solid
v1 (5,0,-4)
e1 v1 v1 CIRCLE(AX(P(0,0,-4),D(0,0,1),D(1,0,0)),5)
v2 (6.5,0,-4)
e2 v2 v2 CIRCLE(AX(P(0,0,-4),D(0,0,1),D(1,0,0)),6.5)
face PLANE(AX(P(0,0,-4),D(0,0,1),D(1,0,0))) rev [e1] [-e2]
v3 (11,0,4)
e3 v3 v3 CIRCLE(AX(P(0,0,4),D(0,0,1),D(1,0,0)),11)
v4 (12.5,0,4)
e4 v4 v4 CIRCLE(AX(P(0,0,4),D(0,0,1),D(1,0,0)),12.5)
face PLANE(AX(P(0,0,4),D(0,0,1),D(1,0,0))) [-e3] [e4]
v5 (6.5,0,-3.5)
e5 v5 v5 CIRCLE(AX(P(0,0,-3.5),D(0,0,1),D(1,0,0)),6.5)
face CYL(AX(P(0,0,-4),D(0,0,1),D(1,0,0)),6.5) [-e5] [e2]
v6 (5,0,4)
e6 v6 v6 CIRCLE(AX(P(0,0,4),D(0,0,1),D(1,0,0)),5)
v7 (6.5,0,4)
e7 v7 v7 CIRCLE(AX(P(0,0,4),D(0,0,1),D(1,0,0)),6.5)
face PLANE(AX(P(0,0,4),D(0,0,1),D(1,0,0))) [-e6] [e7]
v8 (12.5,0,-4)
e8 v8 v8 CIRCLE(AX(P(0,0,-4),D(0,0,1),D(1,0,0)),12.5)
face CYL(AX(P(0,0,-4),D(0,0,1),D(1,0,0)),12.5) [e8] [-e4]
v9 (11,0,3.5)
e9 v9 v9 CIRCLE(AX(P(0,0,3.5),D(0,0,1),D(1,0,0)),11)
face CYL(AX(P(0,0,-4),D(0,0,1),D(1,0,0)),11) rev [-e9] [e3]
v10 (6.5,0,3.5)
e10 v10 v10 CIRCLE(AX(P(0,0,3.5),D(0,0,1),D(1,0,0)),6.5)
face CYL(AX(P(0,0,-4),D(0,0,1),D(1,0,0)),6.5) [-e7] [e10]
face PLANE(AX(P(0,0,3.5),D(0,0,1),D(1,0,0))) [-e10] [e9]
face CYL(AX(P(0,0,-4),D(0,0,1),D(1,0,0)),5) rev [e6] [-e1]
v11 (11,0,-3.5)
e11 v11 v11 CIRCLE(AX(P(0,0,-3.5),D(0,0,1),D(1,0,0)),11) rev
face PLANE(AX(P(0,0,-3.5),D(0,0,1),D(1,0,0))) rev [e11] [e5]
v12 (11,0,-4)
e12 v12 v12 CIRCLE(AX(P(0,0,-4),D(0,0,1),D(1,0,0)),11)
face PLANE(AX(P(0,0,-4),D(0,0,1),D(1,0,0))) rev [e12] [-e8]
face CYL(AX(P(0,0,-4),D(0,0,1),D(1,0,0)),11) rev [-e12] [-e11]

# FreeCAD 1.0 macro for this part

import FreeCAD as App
import Part
import Sketcher
Q = App.Units.Quantity

doc = App.newDocument("Part")
params = doc.addObject("Spreadsheet::Sheet", "Params")
for row, (alias, value) in enumerate([
    ("sketch1_diameter", "25 mm"),
    ("sketch1_diameter2", "22 mm"),
    ("pad1_length", "4 mm"),
    ("pad1_length2", "4 mm"),
    ("sketch2_diameter", "13 mm"),
    ("sketch2_diameter2", "10 mm"),
    ("pad2_length", "4 mm"),
    ("pad2_length2", "4 mm"),
    ("sketch3_diameter", "22 mm"),
    ("sketch3_diameter2", "13 mm"),
    ("pad3_length", "3.5 mm"),
    ("pad3_length2", "3.5 mm"),
], start=1):
    params.set(f"A{row}", alias)
    params.set(f"B{row}", "=" + value)
    params.setAlias(f"B{row}", alias)

body = doc.addObject("PartDesign::Body", "Body")

sketch1 = doc.addObject("Sketcher::SketchObject", "Sketch")
body.addObject(sketch1)
sketch1.AttachmentSupport = (doc.XY_Plane, [""])
sketch1.MapMode = "FlatFace"
sketch1.addGeometry([
    Part.Circle(App.Vector(0, 0, 0), App.Vector(0, 0, 1), 12),
    Part.Circle(App.Vector(0, 0, 0), App.Vector(0, 0, 1), 11),
], False)
sketch1.addConstraint([
    Sketcher.Constraint("Coincident", 0, 3, -1, 1),
    Sketcher.Constraint("Coincident", 1, 3, -1, 1),
    Sketcher.Constraint("Diameter", 0, Q("25 mm")),
    Sketcher.Constraint("Diameter", 1, Q("22 mm")),
])
sketch1.setExpression("Constraints[2]", "Params.sketch1_diameter")
sketch1.setExpression("Constraints[3]", "Params.sketch1_diameter2")
pad1 = doc.addObject("PartDesign::Pad", "Pad")
body.addObject(pad1)
pad1.Profile = sketch1
pad1.Type = "TwoLengths"
pad1.setExpression("Length", "Params.pad1_length")
pad1.setExpression("Length2", "Params.pad1_length2")
body2 = doc.addObject("PartDesign::Body", "Body001")

sketch2 = doc.addObject("Sketcher::SketchObject", "Sketch001")
body2.addObject(sketch2)
sketch2.AttachmentSupport = (doc.getObject("XY_Plane001"), [""])
sketch2.MapMode = "FlatFace"
sketch2.addGeometry([
    Part.Circle(App.Vector(0, 0, 0), App.Vector(0, 0, 1), 6),
    Part.Circle(App.Vector(0, 0, 0), App.Vector(0, 0, 1), 5),
], False)
sketch2.addConstraint([
    Sketcher.Constraint("Coincident", 0, 3, -1, 1),
    Sketcher.Constraint("Coincident", 1, 3, -1, 1),
    Sketcher.Constraint("Diameter", 0, Q("13 mm")),
    Sketcher.Constraint("Diameter", 1, Q("10 mm")),
])
sketch2.setExpression("Constraints[2]", "Params.sketch2_diameter")
sketch2.setExpression("Constraints[3]", "Params.sketch2_diameter2")
pad2 = doc.addObject("PartDesign::Pad", "Pad001")
body2.addObject(pad2)
pad2.Profile = sketch2
pad2.Type = "TwoLengths"
pad2.setExpression("Length", "Params.pad2_length")
pad2.setExpression("Length2", "Params.pad2_length2")
body.AllowCompound = True
doc.recompute()

boolean = doc.addObject("PartDesign::Boolean", "Boolean")
body.addObject(boolean)
boolean.Type = "Fuse"
boolean.addObjects([body2])

sketch3 = doc.addObject("Sketcher::SketchObject", "Sketch002")
body.addObject(sketch3)
sketch3.AttachmentSupport = (doc.XY_Plane, [""])
sketch3.MapMode = "FlatFace"
sketch3.addGeometry([
    Part.Circle(App.Vector(0, 0, 0), App.Vector(0, 0, 1), 11),
    Part.Circle(App.Vector(0, 0, 0), App.Vector(0, 0, 1), 6),
], False)
sketch3.addConstraint([
    Sketcher.Constraint("Coincident", 0, 3, -1, 1),
    Sketcher.Constraint("Coincident", 1, 3, -1, 1),
    Sketcher.Constraint("Diameter", 0, Q("22 mm")),
    Sketcher.Constraint("Diameter", 1, Q("13 mm")),
])
sketch3.setExpression("Constraints[2]", "Params.sketch3_diameter")
sketch3.setExpression("Constraints[3]", "Params.sketch3_diameter2")
pad3 = doc.addObject("PartDesign::Pad", "Pad002")
body.addObject(pad3)
pad3.Profile = sketch3
pad3.Type = "TwoLengths"
pad3.setExpression("Length", "Params.pad3_length")
pad3.setExpression("Length2", "Params.pad3_length2")

doc.recompute()
